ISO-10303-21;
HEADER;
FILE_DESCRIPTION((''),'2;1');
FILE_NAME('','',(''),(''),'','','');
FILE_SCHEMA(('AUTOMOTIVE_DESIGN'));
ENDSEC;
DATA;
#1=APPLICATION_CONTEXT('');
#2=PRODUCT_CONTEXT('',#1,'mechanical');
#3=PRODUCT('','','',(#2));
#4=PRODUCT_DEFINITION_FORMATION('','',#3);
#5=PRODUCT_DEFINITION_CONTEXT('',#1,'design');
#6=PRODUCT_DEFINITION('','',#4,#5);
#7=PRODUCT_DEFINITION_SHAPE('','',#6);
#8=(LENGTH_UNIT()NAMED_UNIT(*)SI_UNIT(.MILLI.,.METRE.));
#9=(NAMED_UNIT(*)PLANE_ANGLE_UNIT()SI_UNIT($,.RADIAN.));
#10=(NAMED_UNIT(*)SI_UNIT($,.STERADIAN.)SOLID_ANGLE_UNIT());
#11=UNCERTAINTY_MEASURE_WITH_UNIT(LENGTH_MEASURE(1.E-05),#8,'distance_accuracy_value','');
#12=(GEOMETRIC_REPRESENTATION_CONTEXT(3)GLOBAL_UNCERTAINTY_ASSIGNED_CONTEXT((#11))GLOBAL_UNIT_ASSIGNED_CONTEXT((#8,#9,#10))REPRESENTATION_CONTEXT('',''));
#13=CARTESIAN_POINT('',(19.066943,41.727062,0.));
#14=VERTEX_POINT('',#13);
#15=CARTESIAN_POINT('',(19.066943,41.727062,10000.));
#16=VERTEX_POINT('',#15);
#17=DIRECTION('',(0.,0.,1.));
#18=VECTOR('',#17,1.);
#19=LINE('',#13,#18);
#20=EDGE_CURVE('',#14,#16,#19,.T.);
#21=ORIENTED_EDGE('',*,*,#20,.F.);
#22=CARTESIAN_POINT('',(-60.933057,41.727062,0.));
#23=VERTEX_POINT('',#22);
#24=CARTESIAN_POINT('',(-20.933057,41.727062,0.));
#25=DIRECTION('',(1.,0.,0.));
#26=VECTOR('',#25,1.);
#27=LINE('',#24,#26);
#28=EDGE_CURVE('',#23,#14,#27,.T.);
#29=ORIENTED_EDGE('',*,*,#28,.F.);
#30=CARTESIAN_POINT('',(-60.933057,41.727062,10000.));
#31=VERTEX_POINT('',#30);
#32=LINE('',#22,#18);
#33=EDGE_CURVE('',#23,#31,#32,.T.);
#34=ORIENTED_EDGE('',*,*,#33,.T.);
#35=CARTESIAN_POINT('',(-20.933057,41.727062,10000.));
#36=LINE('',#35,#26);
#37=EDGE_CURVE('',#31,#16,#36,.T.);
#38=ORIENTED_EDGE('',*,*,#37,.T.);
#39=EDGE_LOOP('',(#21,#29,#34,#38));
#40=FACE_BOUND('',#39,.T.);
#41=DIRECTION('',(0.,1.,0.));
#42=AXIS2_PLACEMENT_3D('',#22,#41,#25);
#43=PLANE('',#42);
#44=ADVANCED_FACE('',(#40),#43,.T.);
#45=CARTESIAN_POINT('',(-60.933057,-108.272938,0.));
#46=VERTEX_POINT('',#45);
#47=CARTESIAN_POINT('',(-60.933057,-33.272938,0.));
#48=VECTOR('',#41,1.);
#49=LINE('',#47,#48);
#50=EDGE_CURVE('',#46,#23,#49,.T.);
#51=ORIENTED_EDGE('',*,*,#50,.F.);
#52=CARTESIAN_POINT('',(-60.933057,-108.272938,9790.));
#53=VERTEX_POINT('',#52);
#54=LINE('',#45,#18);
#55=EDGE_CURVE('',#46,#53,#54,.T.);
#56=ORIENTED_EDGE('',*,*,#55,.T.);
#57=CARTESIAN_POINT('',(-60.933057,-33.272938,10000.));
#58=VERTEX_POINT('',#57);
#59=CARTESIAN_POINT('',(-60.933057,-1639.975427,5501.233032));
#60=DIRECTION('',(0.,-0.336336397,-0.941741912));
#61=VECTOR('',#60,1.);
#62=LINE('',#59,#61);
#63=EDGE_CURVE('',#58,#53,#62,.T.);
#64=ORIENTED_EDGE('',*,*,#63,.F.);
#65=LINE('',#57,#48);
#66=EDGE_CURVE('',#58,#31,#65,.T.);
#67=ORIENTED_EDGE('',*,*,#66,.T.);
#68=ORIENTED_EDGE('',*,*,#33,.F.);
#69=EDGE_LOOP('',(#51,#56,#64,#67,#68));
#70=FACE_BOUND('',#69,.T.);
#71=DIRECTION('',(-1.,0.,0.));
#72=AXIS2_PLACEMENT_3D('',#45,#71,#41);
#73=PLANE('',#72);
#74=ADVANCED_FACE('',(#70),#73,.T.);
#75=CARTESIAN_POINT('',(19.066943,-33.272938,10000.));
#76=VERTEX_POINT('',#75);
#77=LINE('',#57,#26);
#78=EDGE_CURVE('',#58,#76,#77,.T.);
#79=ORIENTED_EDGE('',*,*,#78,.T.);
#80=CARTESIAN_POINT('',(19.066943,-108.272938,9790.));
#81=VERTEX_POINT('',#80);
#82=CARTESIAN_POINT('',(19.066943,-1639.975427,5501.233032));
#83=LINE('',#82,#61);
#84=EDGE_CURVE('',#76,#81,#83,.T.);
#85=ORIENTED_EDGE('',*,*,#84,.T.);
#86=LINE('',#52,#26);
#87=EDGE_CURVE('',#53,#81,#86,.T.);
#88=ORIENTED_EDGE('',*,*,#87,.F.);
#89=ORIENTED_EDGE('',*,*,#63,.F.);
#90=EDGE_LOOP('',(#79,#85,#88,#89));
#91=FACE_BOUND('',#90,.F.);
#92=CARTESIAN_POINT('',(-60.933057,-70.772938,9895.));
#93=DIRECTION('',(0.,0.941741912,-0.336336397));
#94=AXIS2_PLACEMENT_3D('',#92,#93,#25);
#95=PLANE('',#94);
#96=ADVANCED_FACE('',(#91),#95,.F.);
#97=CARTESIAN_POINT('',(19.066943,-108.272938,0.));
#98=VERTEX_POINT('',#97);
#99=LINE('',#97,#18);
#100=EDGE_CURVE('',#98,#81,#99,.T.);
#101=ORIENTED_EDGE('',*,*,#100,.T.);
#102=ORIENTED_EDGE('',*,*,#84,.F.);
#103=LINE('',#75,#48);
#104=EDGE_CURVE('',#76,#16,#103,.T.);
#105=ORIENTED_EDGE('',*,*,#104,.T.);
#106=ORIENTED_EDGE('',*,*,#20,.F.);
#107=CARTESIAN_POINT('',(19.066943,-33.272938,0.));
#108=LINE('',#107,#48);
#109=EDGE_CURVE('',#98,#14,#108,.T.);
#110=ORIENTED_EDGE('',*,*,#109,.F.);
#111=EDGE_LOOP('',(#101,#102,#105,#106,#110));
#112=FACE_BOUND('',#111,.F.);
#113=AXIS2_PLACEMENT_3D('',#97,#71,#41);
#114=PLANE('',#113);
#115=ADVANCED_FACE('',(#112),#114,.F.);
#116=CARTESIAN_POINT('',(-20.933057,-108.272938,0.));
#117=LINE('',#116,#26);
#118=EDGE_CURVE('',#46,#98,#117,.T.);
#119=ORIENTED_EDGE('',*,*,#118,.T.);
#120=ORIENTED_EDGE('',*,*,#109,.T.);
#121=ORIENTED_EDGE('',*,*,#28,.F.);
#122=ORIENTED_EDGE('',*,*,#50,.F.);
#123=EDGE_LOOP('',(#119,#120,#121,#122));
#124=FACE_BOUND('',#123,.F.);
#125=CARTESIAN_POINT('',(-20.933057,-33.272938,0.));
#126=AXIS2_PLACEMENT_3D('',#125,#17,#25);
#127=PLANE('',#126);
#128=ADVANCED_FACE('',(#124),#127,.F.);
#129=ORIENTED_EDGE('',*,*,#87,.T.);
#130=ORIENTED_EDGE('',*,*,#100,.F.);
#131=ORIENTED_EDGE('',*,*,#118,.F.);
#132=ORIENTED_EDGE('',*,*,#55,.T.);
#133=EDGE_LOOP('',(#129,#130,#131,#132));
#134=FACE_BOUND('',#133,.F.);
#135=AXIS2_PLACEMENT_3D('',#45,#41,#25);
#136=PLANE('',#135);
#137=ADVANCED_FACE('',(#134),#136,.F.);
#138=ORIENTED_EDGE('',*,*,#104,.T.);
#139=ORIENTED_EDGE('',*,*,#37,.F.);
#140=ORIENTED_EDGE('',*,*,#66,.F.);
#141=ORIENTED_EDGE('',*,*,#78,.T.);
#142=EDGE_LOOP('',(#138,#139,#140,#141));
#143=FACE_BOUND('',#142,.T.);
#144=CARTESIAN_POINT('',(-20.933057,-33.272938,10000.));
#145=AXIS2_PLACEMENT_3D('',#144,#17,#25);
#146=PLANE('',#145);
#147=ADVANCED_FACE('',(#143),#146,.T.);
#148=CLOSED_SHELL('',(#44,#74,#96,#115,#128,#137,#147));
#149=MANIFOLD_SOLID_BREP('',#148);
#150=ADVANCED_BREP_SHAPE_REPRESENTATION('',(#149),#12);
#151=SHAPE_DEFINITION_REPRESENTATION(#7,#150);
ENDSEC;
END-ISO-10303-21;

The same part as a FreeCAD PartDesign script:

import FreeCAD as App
import Part
import Sketcher
from FreeCAD import Vector
Q = App.Units.Quantity


def edges_at(feature, points):
    """Names of the edges that pass closest to the given points."""
    edges = feature.Shape.Edges
    near = lambda p: min(range(len(edges)), key=lambda i: edges[i].distToShape(Part.Vertex(*p))[0])
    return sorted({f"Edge{near(p) + 1}" for p in points})

doc = App.newDocument("Part")
params = doc.addObject("Spreadsheet::Sheet", "Params")
for row, (alias, value) in enumerate([
    ("sketch1_width", "80 mm"),
    ("sketch1_height", "150 mm"),
    ("pad1_length", "10000 mm"),
    ("chamfer_size", "75 mm"),
    ("chamfer_size2", "210 mm"),
], start=1):
    params.set(f"A{row}", alias)
    params.set(f"B{row}", "=" + value)
    params.setAlias(f"B{row}", alias)

body = doc.addObject("PartDesign::Body", "Body")

sketch1 = doc.addObject("Sketcher::SketchObject", "Sketch")
body.addObject(sketch1)
sketch1.AttachmentSupport = (doc.XY_Plane, [""])
sketch1.MapMode = "FlatFace"
sketch1.addGeometry([
    Part.LineSegment(Vector(-61, 42, 0), Vector(-61, -108, 0)),
    Part.LineSegment(Vector(-61, -108, 0), Vector(19, -108, 0)),
    Part.LineSegment(Vector(19, -108, 0), Vector(19, 42, 0)),
    Part.LineSegment(Vector(19, 42, 0), Vector(-61, 42, 0)),
], False)
sketch1.addConstraint([
    Sketcher.Constraint("Coincident", 0, 2, 1, 1),
    Sketcher.Constraint("Coincident", 1, 2, 2, 1),
    Sketcher.Constraint("Coincident", 2, 2, 3, 1),
    Sketcher.Constraint("Coincident", 3, 2, 0, 1),
    Sketcher.Constraint("Vertical", 0),
    Sketcher.Constraint("Horizontal", 1),
    Sketcher.Constraint("Vertical", 2),
    Sketcher.Constraint("Horizontal", 3),
    Sketcher.Constraint("DistanceX", 1, 1, 1, 2, Q("80 mm")),
    Sketcher.Constraint("DistanceY", 0, 2, 0, 1, Q("150 mm")),
    Sketcher.Constraint("DistanceY", 0, 2, -1, 1, Q("108.272938 mm")),
    Sketcher.Constraint("DistanceX", 0, 2, -1, 1, Q("60.933057 mm")),
])
sketch1.setExpression("Constraints[8]", "Params.sketch1_width")
sketch1.setExpression("Constraints[9]", "Params.sketch1_height")
pad1 = doc.addObject("PartDesign::Pad", "Pad")
body.addObject(pad1)
pad1.Profile = sketch1
pad1.setExpression("Length", "Params.pad1_length")
doc.recompute()

chamfer = doc.addObject("PartDesign::Chamfer", "Chamfer")
body.addObject(chamfer)
chamfer.Base = (pad1, edges_at(pad1, [(-20.933, -108.273, 10000)]))
chamfer.ChamferType = "Two distances"
chamfer.setExpression("Size", "Params.chamfer_size")
chamfer.setExpression("Size2", "Params.chamfer_size2")
chamfer.FlipDirection = True

doc.recompute()
